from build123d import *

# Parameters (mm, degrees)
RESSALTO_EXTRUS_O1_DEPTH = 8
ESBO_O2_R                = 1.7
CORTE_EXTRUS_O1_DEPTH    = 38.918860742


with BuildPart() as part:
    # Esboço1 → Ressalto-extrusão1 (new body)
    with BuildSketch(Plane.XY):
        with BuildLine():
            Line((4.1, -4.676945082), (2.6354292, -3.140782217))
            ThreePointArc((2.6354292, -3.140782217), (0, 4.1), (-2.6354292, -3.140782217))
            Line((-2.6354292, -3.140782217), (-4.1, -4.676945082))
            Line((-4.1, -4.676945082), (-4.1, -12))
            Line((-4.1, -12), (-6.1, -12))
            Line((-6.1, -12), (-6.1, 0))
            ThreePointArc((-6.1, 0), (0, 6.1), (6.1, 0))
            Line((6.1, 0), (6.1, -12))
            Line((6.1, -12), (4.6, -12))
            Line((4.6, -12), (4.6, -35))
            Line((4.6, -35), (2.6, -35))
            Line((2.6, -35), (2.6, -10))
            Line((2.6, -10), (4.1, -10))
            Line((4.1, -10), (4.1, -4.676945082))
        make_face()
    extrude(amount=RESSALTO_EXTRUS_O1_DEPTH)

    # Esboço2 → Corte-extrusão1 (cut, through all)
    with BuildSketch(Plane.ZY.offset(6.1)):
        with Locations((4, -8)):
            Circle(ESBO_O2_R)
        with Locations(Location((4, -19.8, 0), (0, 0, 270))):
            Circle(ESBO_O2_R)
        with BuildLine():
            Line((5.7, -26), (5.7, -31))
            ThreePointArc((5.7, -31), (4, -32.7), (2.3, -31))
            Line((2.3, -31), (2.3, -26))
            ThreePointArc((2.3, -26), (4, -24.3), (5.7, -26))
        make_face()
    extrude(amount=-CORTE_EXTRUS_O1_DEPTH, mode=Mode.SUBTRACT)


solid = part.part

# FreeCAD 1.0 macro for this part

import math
import FreeCAD as App
import Part
import Sketcher

V = App.Vector

doc = App.newDocument("Part")
body = doc.addObject("PartDesign::Body", "Body")

# Sketch on XY plane
sketch1 = body.newObject("Sketcher::SketchObject", "Sketch")
sketch1.AttachmentSupport = (doc.getObject("XY_Plane"), [""])
sketch1.MapMode = "FlatFace"
sketch1.addGeometry([
    Part.LineSegment(V(2.6, -3.1, 0), V(4.1, -4.7, 0)),  # 0
    Part.LineSegment(V(4.1, -4.7, 0), V(4.1, -10, 0)),  # 1
    Part.LineSegment(V(4.1, -10, 0), V(2.6, -10, 0)),  # 2
    Part.LineSegment(V(2.6, -10, 0), V(2.6, -35, 0)),  # 3
    Part.LineSegment(V(2.6, -35, 0), V(4.6, -35, 0)),  # 4
    Part.LineSegment(V(4.6, -35, 0), V(4.6, -12, 0)),  # 5
    Part.LineSegment(V(4.6, -12, 0), V(6.1, -12, 0)),  # 6
    Part.LineSegment(V(6.1, -12, 0), V(6.1, 0, 0)),  # 7
    Part.ArcOfCircle(Part.Circle(V(0, 0, 0), V(0, 0, 1), 6.1), math.radians(0), math.radians(180)),  # 8
    Part.LineSegment(V(-6.1, 0, 0), V(-6.1, -12, 0)),  # 9
    Part.LineSegment(V(-6.1, -12, 0), V(-4.1, -12, 0)),  # 10
    Part.LineSegment(V(-4.1, -12, 0), V(-4.1, -4.7, 0)),  # 11
    Part.LineSegment(V(-4.1, -4.7, 0), V(-2.6, -3.1, 0)),  # 12
    Part.ArcOfCircle(Part.Circle(V(0, 0, 0), V(0, 0, 1), 4.1), math.radians(-50), math.radians(230)),  # 13
], False)
sketch1.addConstraint([
    Sketcher.Constraint("Coincident", 0, 2, 1, 1),
    Sketcher.Constraint("Coincident", 1, 2, 2, 1),
    Sketcher.Constraint("Coincident", 2, 2, 3, 1),
    Sketcher.Constraint("Coincident", 3, 2, 4, 1),
    Sketcher.Constraint("Coincident", 4, 2, 5, 1),
    Sketcher.Constraint("Coincident", 5, 2, 6, 1),
    Sketcher.Constraint("Coincident", 6, 2, 7, 1),
    Sketcher.Constraint("Tangent", 7, 2, 8, 1),
    Sketcher.Constraint("Tangent", 8, 2, 9, 1),
    Sketcher.Constraint("Coincident", 9, 2, 10, 1),
    Sketcher.Constraint("Coincident", 10, 2, 11, 1),
    Sketcher.Constraint("Coincident", 11, 2, 12, 1),
    Sketcher.Constraint("Coincident", 12, 2, 13, 2),
    Sketcher.Constraint("Coincident", 13, 1, 0, 1),
    Sketcher.Constraint("Vertical", 1),
    Sketcher.Constraint("Horizontal", 2),
    Sketcher.Constraint("Vertical", 3),
    Sketcher.Constraint("Horizontal", 4),
    Sketcher.Constraint("Vertical", 5),
    Sketcher.Constraint("Horizontal", 6),
    Sketcher.Constraint("Vertical", 7),
    Sketcher.Constraint("Vertical", 9),
    Sketcher.Constraint("Horizontal", 10),
    Sketcher.Constraint("Vertical", 11),
    Sketcher.Constraint("Coincident", 8, 3, -1, 1),
    Sketcher.Constraint("Coincident", 13, 3, -1, 1),
    Sketcher.Constraint("Symmetric", 0, 2, 11, 2, -2),
    Sketcher.Constraint("Horizontal", 6, 2, 9, 2),
    Sketcher.Constraint("Horizontal", 12, 2, 13, 1),
    Sketcher.Constraint("Equal", 2, 6),
    Sketcher.Constraint("Radius", 8, 6.1),
    Sketcher.Constraint("Radius", 13, 4.1),
    Sketcher.Constraint("DistanceX", 4, 1, 4, 2, 2.0),
    Sketcher.Constraint("DistanceY", 3, 2, 3, 1, 25.0),
    Sketcher.Constraint("DistanceY", 5, 1, 5, 2, 23.0),
    Sketcher.Constraint("DistanceY", 7, 1, 7, 2, 12.0),
    Sketcher.Constraint("DistanceX", 2, 2, 2, 1, 1.5),
    Sketcher.Constraint("DistanceY", 1, 2, 1, 1, 5.323055),
    Sketcher.Constraint("DistanceX", 12, 2, -1, 1, 2.635429),
])
pad1 = body.newObject("PartDesign::Pad", "Pad")
pad1.Profile = sketch1
pad1.Length = 8

# Sketch on YZ plane
sketch2 = body.newObject("Sketcher::SketchObject", "Sketch001")
sketch2.AttachmentSupport = (doc.getObject("YZ_Plane"), [""])
sketch2.MapMode = "FlatFace"
sketch2.AttachmentOffset = App.Placement(V(0, 0, -6.1), App.Rotation())
sketch2.addGeometry([
    Part.Circle(V(-8, 4, 0), V(0, 0, 1), 1.7),  # 0
    Part.Circle(V(-19.8, 4, 0), V(0, 0, 1), 1.7),  # 1
    Part.LineSegment(V(-31, 5.7, 0), V(-26, 5.7, 0)),  # 2
    Part.ArcOfCircle(Part.Circle(V(-26, 4, 0), V(0, 0, 1), 1.7), math.radians(-90), math.radians(90)),  # 3
    Part.LineSegment(V(-26, 2.3, 0), V(-31, 2.3, 0)),  # 4
    Part.ArcOfCircle(Part.Circle(V(-31, 4, 0), V(0, 0, 1), 1.7), math.radians(90), math.radians(270)),  # 5
], False)
sketch2.addConstraint([
    Sketcher.Constraint("Tangent", 2, 2, 3, 2),
    Sketcher.Constraint("Tangent", 3, 1, 4, 1),
    Sketcher.Constraint("Tangent", 4, 2, 5, 2),
    Sketcher.Constraint("Tangent", 5, 1, 2, 1),
    Sketcher.Constraint("Horizontal", 2),
    Sketcher.Constraint("Horizontal", 4),
    Sketcher.Constraint("Equal", 0, 1),
    Sketcher.Constraint("Equal", 1, 3),
    Sketcher.Constraint("Horizontal", 0, 3, 1, 3),
    Sketcher.Constraint("Horizontal", 1, 3, 3, 3),
    Sketcher.Constraint("Diameter", 0, 3.4),
    Sketcher.Constraint("DistanceX", 2, 1, 2, 2, 5.0),
    Sketcher.Constraint("DistanceX", 0, 3, -1, 1, 8.0),
    Sketcher.Constraint("DistanceY", -1, 1, 0, 3, 4.0),
    Sketcher.Constraint("DistanceX", 3, 3, -1, 1, 26.0),
    Sketcher.Constraint("DistanceX", 1, 3, -1, 1, 19.8),
])
pocket1 = body.newObject("PartDesign::Pocket", "Pocket")
pocket1.Profile = sketch2
pocket1.Type = "ThroughAll"
pocket1.Reversed = True

doc.recompute()
